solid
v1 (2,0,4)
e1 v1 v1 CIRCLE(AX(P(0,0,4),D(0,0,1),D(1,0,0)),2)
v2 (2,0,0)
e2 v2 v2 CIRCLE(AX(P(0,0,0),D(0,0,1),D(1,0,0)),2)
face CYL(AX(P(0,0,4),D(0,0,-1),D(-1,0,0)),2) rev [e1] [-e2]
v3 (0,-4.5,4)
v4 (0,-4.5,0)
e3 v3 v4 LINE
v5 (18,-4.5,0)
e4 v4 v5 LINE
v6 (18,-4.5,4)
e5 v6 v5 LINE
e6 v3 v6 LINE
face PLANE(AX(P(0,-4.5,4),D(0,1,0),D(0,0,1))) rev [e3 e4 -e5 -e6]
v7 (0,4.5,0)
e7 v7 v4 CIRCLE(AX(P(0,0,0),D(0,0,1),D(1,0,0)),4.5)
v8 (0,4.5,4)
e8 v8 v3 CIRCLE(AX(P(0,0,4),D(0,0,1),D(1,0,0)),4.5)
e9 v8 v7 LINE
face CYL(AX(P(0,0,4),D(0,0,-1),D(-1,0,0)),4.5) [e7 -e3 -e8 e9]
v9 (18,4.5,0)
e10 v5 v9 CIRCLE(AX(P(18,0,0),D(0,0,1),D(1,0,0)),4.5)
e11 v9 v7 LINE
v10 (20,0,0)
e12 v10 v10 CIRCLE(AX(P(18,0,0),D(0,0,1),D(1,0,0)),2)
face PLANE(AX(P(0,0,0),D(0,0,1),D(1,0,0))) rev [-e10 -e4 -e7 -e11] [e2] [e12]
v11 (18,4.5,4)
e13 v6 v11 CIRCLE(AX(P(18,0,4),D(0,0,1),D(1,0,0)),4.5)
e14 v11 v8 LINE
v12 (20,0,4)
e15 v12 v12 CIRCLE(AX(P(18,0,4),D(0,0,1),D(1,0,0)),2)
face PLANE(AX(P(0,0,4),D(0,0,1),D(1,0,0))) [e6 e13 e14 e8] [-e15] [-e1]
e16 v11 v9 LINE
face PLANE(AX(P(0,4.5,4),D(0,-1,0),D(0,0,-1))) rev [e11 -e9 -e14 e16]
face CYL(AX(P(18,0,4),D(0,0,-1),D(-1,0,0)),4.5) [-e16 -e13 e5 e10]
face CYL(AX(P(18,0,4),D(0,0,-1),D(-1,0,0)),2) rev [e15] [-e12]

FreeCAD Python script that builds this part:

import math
import FreeCAD as App
import Part
import Sketcher
from FreeCAD import Vector
Q = App.Units.Quantity

doc = App.newDocument("Part")
body = doc.addObject("PartDesign::Body", "Body")

# Sketch on XY plane
sketch1 = body.newObject("Sketcher::SketchObject", "Sketch")
sketch1.AttachmentSupport = (doc.getObject("XY_Plane"), [""])
sketch1.MapMode = "FlatFace"
sketch1.addGeometry(Part.LineSegment(Vector(18, 4.5, 0), Vector(0, 4.5, 0)), False)
sketch1.addGeometry(Part.ArcOfCircle(Part.Circle(Vector(0, 0, 0), Vector(0, 0, 1), 4.5), math.radians(90), math.radians(270)), False)
sketch1.addGeometry(Part.LineSegment(Vector(0, -4.5, 0), Vector(18, -4.5, 0)), False)
sketch1.addGeometry(Part.ArcOfCircle(Part.Circle(Vector(18, 0, 0), Vector(0, 0, 1), 4.5), math.radians(-90), math.radians(90)), False)
sketch1.addGeometry(Part.Circle(Vector(18, 0, 0), Vector(0, 0, 1), 2), False)
sketch1.addGeometry(Part.Circle(Vector(0, 0, 0), Vector(0, 0, 1), 2), False)
sketch1.addConstraint(Sketcher.Constraint("Tangent", 0, 2, 1, 1))
sketch1.addConstraint(Sketcher.Constraint("Tangent", 1, 2, 2, 1))
sketch1.addConstraint(Sketcher.Constraint("Tangent", 2, 2, 3, 1))
sketch1.addConstraint(Sketcher.Constraint("Tangent", 3, 2, 0, 1))
sketch1.addConstraint(Sketcher.Constraint("Horizontal", 0))
sketch1.addConstraint(Sketcher.Constraint("Horizontal", 2))
sketch1.addConstraint(Sketcher.Constraint("Coincident", 1, 3, -1, 1))
sketch1.addConstraint(Sketcher.Constraint("Coincident", 5, 3, -1, 1))
sketch1.addConstraint(Sketcher.Constraint("Coincident", 4, 3, 3, 3))
sketch1.addConstraint(Sketcher.Constraint("Equal", 4, 5))
sketch1.addConstraint(Sketcher.Constraint("Diameter", 4, Q("4 mm")))
sketch1.addConstraint(Sketcher.Constraint("Radius", 1, Q("4.5 mm")))
sketch1.addConstraint(Sketcher.Constraint("DistanceX", 0, 2, 0, 1, Q("18 mm")))
pad1 = body.newObject("PartDesign::Pad", "Pad")
pad1.Profile = sketch1
pad1.Length = 4

doc.recompute()
